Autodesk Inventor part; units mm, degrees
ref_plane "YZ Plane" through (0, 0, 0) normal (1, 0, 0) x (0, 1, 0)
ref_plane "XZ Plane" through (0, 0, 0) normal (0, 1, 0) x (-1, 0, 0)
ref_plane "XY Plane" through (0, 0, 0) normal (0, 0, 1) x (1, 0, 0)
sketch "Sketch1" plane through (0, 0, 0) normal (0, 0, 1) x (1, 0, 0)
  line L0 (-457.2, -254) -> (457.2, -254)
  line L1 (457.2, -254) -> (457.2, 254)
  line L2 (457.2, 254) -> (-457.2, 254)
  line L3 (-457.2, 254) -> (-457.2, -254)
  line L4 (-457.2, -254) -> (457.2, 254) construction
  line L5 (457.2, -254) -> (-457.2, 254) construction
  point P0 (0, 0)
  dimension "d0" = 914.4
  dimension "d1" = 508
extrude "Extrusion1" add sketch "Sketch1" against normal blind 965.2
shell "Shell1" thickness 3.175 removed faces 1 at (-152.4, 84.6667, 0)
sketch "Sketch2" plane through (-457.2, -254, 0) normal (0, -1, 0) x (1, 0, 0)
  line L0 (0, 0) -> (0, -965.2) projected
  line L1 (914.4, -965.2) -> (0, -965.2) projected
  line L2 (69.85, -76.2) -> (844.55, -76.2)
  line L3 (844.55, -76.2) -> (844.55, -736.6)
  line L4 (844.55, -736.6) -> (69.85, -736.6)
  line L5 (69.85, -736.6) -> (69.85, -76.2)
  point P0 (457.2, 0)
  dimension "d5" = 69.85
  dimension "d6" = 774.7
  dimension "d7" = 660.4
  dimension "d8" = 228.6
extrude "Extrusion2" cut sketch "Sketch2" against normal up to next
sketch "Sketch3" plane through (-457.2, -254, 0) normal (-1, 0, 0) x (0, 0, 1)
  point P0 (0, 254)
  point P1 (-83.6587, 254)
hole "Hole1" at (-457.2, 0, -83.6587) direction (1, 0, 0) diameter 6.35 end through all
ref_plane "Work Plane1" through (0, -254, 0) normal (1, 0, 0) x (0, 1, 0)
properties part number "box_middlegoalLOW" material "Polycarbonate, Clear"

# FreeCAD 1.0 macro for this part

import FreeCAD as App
import Part
import Sketcher

V = App.Vector
Q = App.Units.Quantity


def faces_at(feature, points):
    """Names of the faces that lie closest to the given points."""
    faces = feature.Shape.Faces
    near = lambda p: min(range(len(faces)), key=lambda i: faces[i].distToShape(Part.Vertex(*p))[0])
    return sorted({f"Face{near(p) + 1}" for p in points})

doc = App.newDocument("Part")
body = doc.addObject("PartDesign::Body", "Body")

# Sketch on XY plane
sketch1 = body.newObject("Sketcher::SketchObject", "Sketch")
sketch1.AttachmentSupport = (doc.getObject("XY_Plane"), [""])
sketch1.MapMode = "FlatFace"
sketch1.addGeometry([
    Part.LineSegment(V(-457, 254, 0), V(-457, -254, 0)),
    Part.LineSegment(V(-457, -254, 0), V(457, -254, 0)),
    Part.LineSegment(V(457, -254, 0), V(457, 254, 0)),
    Part.LineSegment(V(457, 254, 0), V(-457, 254, 0)),
], False)
sketch1.addConstraint([
    Sketcher.Constraint("Coincident", 0, 2, 1, 1),
    Sketcher.Constraint("Coincident", 1, 2, 2, 1),
    Sketcher.Constraint("Coincident", 2, 2, 3, 1),
    Sketcher.Constraint("Coincident", 3, 2, 0, 1),
    Sketcher.Constraint("Vertical", 0),
    Sketcher.Constraint("Horizontal", 1),
    Sketcher.Constraint("Vertical", 2),
    Sketcher.Constraint("Horizontal", 3),
    Sketcher.Constraint("Symmetric", 0, 2, 2, 2, -1, 1),
    Sketcher.Constraint("DistanceX", 1, 1, 1, 2, Q("36 in")),
    Sketcher.Constraint("DistanceY", 0, 2, 0, 1, Q("20 in")),
])
pad1 = body.newObject("PartDesign::Pad", "Pad")
pad1.Profile = sketch1
pad1.Length = Q("38 in")
pad1.Reversed = True
doc.recompute()

thickness = body.newObject("PartDesign::Thickness", "Thickness")
thickness.Base = (pad1, faces_at(pad1, [(-152.4, 84.667, 0)]))
thickness.Value = Q("0.125 in")
thickness.Reversed = True
thickness.Join = "Intersection"

# Sketch on XZ plane
sketch2 = body.newObject("Sketcher::SketchObject", "Sketch001")
sketch2.AttachmentSupport = (doc.getObject("XZ_Plane"), [""])
sketch2.MapMode = "FlatFace"
sketch2.AttachmentOffset = App.Placement(V(0, 0, 10 * 25.4), App.Rotation())
sketch2.addGeometry([
    Part.LineSegment(V(387, -76, 0), V(-387, -76, 0)),
    Part.LineSegment(V(-387, -76, 0), V(-387, -737, 0)),
    Part.LineSegment(V(-387, -737, 0), V(387, -737, 0)),
    Part.LineSegment(V(387, -737, 0), V(387, -76, 0)),
], False)
sketch2.addConstraint([
    Sketcher.Constraint("Coincident", 0, 2, 1, 1),
    Sketcher.Constraint("Coincident", 1, 2, 2, 1),
    Sketcher.Constraint("Coincident", 2, 2, 3, 1),
    Sketcher.Constraint("Coincident", 3, 2, 0, 1),
    Sketcher.Constraint("Horizontal", 0),
    Sketcher.Constraint("Vertical", 1),
    Sketcher.Constraint("Horizontal", 2),
    Sketcher.Constraint("Vertical", 3),
    Sketcher.Constraint("DistanceY", 1, 2, 1, 1, Q("26 in")),
    Sketcher.Constraint("DistanceX", 0, 2, 0, 1, Q("30.5 in")),
    Sketcher.Constraint("DistanceY", 0, 2, -1, 1, Q("3 in")),
    Sketcher.Constraint("DistanceX", 0, 2, -1, 1, Q("15.25 in")),
])
pocket1 = body.newObject("PartDesign::Pocket", "Pocket")
pocket1.Profile = sketch2
pocket1.Type = "UpToFirst"

# Sketch on YZ plane
sketch3 = body.newObject("Sketcher::SketchObject", "Sketch002")
sketch3.AttachmentSupport = (doc.getObject("YZ_Plane"), [""])
sketch3.MapMode = "FlatFace"
sketch3.AttachmentOffset = App.Placement(V(0, 0, -18 * 25.4), App.Rotation())
sketch3.addGeometry(Part.Circle(V(0, -83.7, 0), V(0, 0, 1), 3.2), False)
sketch3.addConstraint([
    Sketcher.Constraint("PointOnObject", 0, 3, -2),
    Sketcher.Constraint("Diameter", 0, Q("0.25 in")),
    Sketcher.Constraint("DistanceY", 0, 3, -1, 1, 83.6587),
])
doc.recompute()
hole = body.newObject("PartDesign::Hole", "Hole")
hole.Profile = sketch3
hole.ThreadType = "None"
hole.Diameter = Q("0.25 in")
hole.DepthType = "ThroughAll"
hole.Reversed = True

doc.recompute()
